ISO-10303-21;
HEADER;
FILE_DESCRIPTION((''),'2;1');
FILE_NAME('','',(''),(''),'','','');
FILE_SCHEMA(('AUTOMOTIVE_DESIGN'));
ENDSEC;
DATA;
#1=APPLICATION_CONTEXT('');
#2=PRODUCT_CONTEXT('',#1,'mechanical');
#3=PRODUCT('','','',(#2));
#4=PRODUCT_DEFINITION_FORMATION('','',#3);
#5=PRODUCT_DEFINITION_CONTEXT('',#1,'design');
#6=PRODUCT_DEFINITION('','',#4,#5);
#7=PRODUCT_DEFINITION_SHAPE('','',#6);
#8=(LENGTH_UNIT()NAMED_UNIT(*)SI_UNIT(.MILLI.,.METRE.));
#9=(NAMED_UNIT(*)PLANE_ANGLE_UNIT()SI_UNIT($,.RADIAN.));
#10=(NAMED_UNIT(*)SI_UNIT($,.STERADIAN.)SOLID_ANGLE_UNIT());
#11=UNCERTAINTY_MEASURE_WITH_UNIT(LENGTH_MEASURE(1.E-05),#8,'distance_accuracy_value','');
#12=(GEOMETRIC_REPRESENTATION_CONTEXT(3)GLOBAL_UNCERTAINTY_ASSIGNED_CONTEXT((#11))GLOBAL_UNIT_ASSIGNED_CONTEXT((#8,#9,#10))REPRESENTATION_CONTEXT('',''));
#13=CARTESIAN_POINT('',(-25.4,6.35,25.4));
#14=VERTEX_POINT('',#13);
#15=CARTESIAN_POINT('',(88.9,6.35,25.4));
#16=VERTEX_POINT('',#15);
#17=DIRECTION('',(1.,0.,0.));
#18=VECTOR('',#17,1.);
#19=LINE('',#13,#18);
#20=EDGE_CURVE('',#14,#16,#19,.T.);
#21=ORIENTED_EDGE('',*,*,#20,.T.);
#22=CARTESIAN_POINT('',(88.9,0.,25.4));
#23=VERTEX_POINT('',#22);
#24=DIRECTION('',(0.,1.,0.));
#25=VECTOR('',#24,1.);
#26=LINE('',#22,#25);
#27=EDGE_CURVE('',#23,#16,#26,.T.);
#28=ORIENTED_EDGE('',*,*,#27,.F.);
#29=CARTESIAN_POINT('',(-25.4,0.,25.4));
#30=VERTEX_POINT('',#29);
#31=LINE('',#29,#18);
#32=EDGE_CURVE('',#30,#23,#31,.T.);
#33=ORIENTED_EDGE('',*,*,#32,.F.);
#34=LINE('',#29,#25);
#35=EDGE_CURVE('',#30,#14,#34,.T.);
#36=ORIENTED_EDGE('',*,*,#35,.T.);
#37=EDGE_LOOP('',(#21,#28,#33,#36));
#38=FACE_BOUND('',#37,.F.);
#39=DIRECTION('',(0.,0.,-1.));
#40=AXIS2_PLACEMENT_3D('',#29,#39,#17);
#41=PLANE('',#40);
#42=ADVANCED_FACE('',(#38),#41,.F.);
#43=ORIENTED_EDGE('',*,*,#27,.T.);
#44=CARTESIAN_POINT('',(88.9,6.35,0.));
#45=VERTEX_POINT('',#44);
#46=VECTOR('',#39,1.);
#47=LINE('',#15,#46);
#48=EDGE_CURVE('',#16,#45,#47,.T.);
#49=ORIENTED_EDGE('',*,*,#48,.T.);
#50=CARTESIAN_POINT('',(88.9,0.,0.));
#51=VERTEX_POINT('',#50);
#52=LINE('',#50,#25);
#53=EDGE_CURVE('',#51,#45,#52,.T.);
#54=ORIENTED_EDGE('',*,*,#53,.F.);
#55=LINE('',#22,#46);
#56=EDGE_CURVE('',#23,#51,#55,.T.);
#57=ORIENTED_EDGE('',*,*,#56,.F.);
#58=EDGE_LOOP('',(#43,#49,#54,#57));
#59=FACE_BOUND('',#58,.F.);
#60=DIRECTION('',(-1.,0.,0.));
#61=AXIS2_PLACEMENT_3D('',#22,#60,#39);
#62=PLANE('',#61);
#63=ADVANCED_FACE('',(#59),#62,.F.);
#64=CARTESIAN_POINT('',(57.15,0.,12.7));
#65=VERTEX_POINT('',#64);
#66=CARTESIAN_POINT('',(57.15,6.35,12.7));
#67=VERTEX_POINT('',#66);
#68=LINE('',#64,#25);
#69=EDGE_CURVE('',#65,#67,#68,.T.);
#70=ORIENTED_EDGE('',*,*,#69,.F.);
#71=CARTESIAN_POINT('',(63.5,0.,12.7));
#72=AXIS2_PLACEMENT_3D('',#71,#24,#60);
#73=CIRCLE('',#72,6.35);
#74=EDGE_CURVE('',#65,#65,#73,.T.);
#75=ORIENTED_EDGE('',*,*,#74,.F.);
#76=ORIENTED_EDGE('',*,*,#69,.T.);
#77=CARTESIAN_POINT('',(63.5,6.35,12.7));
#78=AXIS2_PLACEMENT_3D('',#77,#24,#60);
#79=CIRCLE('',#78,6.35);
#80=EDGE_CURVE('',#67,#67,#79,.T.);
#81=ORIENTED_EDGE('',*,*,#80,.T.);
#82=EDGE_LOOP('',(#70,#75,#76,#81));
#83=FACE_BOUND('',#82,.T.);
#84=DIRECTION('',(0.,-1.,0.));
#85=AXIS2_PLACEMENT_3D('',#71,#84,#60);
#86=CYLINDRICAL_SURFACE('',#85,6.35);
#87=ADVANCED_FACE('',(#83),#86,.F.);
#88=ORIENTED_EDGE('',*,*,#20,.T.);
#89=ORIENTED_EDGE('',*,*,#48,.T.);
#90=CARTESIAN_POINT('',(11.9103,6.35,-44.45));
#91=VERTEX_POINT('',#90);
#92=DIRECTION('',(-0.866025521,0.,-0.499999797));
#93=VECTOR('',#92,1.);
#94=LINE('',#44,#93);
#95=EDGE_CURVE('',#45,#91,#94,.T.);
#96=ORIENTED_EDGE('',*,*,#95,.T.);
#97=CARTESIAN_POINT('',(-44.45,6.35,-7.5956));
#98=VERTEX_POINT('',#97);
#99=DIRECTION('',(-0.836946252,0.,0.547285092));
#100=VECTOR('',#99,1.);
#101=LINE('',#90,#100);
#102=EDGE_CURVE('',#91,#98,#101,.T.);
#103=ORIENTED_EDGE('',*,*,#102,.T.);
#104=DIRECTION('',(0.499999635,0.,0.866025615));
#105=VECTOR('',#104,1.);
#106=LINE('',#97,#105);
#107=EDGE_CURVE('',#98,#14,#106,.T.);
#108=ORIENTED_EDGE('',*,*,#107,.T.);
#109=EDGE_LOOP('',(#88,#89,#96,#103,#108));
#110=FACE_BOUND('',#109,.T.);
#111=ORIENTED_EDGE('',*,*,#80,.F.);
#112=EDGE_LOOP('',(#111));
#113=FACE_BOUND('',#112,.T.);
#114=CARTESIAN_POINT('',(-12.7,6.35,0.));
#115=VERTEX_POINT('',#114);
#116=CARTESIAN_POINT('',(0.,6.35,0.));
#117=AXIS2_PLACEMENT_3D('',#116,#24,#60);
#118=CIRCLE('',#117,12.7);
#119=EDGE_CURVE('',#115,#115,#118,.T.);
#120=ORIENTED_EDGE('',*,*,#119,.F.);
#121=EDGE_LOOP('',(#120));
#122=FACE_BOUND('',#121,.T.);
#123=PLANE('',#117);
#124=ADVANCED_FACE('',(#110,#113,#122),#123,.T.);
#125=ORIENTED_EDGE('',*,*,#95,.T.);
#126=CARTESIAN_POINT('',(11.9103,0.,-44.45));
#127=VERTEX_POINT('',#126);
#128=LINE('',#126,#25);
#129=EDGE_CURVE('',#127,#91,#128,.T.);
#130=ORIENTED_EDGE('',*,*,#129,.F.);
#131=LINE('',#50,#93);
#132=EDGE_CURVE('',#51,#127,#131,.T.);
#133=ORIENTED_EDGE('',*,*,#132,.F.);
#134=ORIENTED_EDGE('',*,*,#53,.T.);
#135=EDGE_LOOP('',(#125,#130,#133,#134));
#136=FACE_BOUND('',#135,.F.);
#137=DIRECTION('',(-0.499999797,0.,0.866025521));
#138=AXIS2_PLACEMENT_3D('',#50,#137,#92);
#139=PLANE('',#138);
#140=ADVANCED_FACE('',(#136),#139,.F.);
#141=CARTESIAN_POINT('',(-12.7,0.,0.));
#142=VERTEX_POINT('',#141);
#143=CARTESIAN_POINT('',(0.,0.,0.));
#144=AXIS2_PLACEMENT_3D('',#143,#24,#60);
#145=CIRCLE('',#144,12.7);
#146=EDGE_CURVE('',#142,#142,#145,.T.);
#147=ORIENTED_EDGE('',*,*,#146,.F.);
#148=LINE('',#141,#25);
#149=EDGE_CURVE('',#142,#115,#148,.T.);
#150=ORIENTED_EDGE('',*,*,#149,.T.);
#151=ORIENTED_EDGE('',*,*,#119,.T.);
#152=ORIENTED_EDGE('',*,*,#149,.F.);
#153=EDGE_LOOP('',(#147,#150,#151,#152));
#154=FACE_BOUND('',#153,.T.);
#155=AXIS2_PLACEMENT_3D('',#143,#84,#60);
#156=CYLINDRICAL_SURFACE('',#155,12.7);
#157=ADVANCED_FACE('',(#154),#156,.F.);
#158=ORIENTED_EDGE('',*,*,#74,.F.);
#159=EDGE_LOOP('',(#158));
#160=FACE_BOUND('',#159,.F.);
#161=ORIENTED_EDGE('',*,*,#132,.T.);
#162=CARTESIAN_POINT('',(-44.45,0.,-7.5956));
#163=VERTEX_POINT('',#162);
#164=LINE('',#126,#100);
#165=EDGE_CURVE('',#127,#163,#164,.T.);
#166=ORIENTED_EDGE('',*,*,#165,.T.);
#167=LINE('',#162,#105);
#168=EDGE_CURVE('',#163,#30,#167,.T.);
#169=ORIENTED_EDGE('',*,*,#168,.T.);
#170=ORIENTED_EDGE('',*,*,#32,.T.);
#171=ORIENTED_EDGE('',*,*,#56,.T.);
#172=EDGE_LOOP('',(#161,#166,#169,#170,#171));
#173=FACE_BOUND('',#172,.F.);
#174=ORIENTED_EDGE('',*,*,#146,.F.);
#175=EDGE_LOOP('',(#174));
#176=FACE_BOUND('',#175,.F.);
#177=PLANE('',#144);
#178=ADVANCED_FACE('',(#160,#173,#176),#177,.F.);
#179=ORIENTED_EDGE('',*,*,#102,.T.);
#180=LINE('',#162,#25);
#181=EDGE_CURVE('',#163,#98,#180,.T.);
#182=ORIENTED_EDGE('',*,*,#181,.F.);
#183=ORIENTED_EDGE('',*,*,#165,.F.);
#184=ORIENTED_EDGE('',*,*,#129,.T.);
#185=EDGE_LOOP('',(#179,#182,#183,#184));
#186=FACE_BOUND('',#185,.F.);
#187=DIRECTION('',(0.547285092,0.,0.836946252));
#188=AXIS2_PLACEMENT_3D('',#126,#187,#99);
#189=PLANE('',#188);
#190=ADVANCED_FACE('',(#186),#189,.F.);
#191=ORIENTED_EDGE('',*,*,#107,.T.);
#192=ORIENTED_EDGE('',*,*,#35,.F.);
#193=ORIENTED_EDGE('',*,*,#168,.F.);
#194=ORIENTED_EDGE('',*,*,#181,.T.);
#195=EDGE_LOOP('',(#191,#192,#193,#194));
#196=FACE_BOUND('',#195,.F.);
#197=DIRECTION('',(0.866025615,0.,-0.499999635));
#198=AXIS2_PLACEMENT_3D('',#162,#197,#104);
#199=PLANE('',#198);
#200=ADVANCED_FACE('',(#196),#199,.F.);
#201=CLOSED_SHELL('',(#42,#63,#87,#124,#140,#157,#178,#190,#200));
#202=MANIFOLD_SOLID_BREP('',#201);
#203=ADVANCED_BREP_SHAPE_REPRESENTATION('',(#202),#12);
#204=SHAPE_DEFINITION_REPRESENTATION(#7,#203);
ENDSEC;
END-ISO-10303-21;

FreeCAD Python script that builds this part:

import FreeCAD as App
import Part
import Sketcher
Q = App.Units.Quantity


def add_polygon(sketch, points):
    """Adds a closed chain of lines whose ends are joined by coincident constraints."""
    first, n = sketch.GeometryCount, len(points)
    for a, b in zip(points, points[1:] + points[:1]):
        sketch.addGeometry(Part.LineSegment(App.Vector(*a, 0), App.Vector(*b, 0)), False)
    for i in range(n):
        sketch.addConstraint(Sketcher.Constraint("Coincident", first + i, 2, first + (i + 1) % n, 1))

doc = App.newDocument("Part")
body = doc.addObject("PartDesign::Body", "Body")

sketch1 = doc.addObject("Sketcher::SketchObject", "Sketch")
body.addObject(sketch1)
sketch1.AttachmentSupport = (doc.XZ_Plane, [""])
sketch1.MapMode = "FlatFace"
add_polygon(sketch1, [(89, 0), (12, -44), (-44, -8), (-25, 25), (89, 25)])
sketch1.addGeometry(Part.Circle(App.Vector(64, 13, 0), App.Vector(0, 0, 1), 6), False)
sketch1.addGeometry(Part.Circle(App.Vector(0, 0, 0), App.Vector(0, 0, 1), 13), False)
sketch1.addConstraint(Sketcher.Constraint("Horizontal", 3))
sketch1.addConstraint(Sketcher.Constraint("Vertical", 4))
sketch1.addConstraint(Sketcher.Constraint("Coincident", 6, 3, -1, 1))
sketch1.addConstraint(Sketcher.Constraint("PointOnObject", 4, 2, -1))
sketch1.addConstraint(Sketcher.Constraint("Diameter", 6, Q("1 in")))
sketch1.addConstraint(Sketcher.Constraint("Diameter", 5, Q("0.5 in")))
sketch1.addConstraint(Sketcher.Constraint("DistanceY", 4, 2, 4, 1, Q("1 in")))
sketch1.addConstraint(Sketcher.Constraint("DistanceX", 3, 1, 3, 2, Q("4.5 in")))
sketch1.addConstraint(Sketcher.Constraint("DistanceX", 2, 2, -1, 1, Q("1 in")))
sketch1.addConstraint(Sketcher.Constraint("Angle", 2, Q("60 deg")))
sketch1.addConstraint(Sketcher.Constraint("DistanceX", 5, 3, 3, 2, Q("1 in")))
sketch1.addConstraint(Sketcher.Constraint("Distance", 0, Q("3.5 in")))
sketch1.addConstraint(Sketcher.Constraint("Distance", 2, Q("1.5 in")))
sketch1.addConstraint(Sketcher.Constraint("DistanceY", -1, 1, 5, 3, Q("0.5 in")))
sketch1.addConstraint(Sketcher.Constraint("Angle", 0, Q("-150 deg")))
pad1 = doc.addObject("PartDesign::Pad", "Pad")
body.addObject(pad1)
pad1.Profile = sketch1
pad1.Length = Q("0.25 in")
pad1.Reversed = True

doc.recompute()
